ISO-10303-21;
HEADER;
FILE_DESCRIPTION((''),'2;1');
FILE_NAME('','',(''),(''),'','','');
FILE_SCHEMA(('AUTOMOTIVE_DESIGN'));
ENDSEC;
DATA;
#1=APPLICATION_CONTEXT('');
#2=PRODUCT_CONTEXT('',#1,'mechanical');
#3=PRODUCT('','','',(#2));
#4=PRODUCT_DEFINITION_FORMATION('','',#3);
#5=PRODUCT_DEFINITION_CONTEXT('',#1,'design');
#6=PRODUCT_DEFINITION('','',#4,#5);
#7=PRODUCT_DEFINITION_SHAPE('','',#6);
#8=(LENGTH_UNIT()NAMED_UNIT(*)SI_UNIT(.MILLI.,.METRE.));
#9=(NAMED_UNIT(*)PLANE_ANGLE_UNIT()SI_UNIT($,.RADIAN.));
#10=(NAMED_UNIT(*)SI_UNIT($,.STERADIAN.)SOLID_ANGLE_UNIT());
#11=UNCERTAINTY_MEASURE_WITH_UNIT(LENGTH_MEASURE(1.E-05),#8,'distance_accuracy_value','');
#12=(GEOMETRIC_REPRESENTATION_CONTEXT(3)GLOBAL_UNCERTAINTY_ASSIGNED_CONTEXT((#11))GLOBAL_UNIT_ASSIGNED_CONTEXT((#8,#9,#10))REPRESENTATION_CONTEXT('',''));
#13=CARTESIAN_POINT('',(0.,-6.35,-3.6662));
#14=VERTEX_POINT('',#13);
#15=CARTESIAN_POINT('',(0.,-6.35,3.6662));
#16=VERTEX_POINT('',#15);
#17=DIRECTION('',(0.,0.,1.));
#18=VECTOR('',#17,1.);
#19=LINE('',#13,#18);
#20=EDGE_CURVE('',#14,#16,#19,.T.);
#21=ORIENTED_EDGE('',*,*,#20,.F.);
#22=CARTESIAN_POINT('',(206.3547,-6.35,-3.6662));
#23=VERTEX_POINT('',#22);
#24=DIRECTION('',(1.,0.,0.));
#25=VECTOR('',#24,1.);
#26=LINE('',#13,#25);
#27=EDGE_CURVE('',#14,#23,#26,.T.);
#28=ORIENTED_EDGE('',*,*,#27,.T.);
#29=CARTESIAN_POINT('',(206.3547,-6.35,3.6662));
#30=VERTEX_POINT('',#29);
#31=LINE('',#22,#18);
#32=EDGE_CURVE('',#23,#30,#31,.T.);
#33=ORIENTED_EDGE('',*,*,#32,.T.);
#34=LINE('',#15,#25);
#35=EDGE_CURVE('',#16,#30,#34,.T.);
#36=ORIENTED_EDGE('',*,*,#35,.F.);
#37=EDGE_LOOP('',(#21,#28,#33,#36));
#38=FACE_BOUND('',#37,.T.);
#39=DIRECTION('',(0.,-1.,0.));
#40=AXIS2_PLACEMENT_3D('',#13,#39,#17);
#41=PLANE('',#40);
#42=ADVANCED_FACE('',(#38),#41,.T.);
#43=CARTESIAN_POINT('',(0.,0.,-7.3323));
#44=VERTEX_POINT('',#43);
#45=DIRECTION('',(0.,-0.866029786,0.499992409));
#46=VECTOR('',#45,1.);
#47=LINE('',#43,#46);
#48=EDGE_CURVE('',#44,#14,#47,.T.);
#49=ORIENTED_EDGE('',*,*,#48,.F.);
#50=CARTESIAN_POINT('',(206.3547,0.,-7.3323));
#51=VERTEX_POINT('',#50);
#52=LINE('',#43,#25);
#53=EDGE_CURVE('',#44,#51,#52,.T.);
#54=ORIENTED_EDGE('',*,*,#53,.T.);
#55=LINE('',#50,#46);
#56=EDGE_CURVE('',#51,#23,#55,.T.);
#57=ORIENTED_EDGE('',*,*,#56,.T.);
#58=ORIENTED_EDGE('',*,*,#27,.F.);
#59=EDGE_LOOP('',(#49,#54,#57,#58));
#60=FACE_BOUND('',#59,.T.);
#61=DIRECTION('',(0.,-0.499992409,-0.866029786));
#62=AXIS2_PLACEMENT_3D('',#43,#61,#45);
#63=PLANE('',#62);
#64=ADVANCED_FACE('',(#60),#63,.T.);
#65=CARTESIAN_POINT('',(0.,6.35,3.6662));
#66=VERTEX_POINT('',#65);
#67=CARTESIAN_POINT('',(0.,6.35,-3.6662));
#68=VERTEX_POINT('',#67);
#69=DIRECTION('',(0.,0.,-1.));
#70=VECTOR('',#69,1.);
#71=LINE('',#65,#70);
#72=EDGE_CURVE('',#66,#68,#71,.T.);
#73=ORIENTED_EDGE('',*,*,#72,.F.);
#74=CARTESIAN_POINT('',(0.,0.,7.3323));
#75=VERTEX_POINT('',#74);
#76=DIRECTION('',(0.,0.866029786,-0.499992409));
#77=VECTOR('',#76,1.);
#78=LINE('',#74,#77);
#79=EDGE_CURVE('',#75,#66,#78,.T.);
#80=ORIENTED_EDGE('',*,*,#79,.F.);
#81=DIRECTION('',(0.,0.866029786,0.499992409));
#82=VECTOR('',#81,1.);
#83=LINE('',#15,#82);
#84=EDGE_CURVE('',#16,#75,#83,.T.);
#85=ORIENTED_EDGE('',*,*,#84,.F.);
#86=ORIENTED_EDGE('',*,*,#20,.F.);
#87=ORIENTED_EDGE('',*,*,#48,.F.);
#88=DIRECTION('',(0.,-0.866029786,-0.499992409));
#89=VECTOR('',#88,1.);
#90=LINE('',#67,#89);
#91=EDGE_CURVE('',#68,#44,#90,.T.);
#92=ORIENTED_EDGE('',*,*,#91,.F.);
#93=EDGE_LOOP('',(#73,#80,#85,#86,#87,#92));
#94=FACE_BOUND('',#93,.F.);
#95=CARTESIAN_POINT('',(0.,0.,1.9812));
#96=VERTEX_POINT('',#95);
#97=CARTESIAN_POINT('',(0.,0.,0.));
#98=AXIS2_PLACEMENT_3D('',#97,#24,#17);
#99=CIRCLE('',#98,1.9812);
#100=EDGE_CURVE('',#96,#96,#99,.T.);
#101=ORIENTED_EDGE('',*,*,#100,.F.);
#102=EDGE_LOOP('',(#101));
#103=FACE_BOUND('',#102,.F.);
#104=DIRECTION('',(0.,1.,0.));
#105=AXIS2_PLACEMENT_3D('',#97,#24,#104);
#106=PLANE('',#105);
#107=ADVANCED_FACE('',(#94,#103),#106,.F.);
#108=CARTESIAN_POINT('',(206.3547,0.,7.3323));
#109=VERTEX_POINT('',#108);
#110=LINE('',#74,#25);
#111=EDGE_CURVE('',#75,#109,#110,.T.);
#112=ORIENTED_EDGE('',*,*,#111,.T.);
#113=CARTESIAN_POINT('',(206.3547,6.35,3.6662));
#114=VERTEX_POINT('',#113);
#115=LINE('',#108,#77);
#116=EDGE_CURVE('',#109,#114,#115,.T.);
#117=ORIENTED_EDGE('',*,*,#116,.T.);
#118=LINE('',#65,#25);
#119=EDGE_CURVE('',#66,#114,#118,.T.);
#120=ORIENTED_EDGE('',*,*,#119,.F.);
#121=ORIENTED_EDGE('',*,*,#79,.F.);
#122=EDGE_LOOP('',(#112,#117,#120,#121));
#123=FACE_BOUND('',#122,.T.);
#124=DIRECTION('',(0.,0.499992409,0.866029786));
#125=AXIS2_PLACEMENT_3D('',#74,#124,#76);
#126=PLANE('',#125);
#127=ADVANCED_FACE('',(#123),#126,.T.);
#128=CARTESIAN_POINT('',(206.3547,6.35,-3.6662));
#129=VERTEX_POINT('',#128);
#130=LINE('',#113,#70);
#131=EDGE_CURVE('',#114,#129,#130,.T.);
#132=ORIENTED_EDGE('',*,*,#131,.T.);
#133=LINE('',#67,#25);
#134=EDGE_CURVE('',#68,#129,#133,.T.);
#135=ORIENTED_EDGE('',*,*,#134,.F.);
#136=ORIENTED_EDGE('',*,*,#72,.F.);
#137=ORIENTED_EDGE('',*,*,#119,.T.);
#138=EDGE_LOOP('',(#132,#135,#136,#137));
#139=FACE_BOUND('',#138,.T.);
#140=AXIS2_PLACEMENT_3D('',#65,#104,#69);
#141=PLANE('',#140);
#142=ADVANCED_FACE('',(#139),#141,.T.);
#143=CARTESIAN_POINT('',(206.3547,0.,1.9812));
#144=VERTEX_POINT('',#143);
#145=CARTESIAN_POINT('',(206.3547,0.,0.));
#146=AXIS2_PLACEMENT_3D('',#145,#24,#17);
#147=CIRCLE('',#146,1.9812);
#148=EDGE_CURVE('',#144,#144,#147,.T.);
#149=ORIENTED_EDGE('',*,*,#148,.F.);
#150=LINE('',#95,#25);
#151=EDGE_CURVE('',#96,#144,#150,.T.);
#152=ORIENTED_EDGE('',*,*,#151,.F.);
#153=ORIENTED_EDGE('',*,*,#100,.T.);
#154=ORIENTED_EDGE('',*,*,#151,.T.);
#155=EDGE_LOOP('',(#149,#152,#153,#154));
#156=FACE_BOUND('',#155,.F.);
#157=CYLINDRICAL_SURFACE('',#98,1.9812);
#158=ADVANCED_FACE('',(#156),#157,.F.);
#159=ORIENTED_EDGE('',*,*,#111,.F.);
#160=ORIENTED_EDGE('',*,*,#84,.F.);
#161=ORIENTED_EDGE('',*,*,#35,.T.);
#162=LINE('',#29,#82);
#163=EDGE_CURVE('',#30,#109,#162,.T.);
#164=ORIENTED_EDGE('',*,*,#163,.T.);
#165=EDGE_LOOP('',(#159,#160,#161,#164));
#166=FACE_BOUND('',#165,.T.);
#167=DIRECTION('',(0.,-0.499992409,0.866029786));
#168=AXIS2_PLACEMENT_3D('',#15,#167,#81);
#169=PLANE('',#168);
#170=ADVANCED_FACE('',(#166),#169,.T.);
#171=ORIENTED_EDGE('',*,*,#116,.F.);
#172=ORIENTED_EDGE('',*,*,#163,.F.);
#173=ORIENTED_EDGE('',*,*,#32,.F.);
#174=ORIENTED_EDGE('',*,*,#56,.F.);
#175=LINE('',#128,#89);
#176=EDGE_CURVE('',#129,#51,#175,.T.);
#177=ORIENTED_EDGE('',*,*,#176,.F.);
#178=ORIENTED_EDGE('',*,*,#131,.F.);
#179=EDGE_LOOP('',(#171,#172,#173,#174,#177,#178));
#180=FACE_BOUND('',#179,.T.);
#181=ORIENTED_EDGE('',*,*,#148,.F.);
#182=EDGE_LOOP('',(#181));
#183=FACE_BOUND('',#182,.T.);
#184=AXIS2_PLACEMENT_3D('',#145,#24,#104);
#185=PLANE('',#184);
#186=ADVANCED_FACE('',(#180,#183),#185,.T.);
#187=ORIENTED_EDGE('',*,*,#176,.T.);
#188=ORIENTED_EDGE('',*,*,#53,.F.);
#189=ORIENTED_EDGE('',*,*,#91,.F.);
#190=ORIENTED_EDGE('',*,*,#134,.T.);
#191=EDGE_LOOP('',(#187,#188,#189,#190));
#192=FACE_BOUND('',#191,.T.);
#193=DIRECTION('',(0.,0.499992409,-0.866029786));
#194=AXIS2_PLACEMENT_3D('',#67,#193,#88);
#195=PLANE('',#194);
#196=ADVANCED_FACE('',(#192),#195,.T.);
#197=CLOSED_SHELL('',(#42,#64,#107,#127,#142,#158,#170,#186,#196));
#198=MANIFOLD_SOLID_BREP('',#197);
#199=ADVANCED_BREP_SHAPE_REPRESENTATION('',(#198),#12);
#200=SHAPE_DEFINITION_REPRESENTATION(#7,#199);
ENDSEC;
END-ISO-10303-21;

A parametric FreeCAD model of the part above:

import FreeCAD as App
import Part
import Sketcher
from FreeCAD import Vector
Q = App.Units.Quantity

doc = App.newDocument("Part")
body = doc.addObject("PartDesign::Body", "Body")

sketch1 = body.newObject("Sketcher::SketchObject", "Sketch")
sketch1.AttachmentSupport = (doc.getObject("YZ_Plane"), [""])
sketch1.MapMode = "FlatFace"
sketch1.addGeometry(Part.LineSegment(Vector(-6, 4, 0), Vector(-6, -4, 0)), False)
sketch1.addGeometry(Part.LineSegment(Vector(-6, -4, 0), Vector(0, -7, 0)), False)
sketch1.addGeometry(Part.LineSegment(Vector(0, -7, 0), Vector(6, -4, 0)), False)
sketch1.addGeometry(Part.LineSegment(Vector(6, -4, 0), Vector(6, 4, 0)), False)
sketch1.addGeometry(Part.LineSegment(Vector(6, 4, 0), Vector(0, 7, 0)), False)
sketch1.addGeometry(Part.LineSegment(Vector(0, 7, 0), Vector(-6, 4, 0)), False)
sketch1.addConstraint(Sketcher.Constraint("Coincident", 0, 2, 1, 1))
sketch1.addConstraint(Sketcher.Constraint("Coincident", 1, 2, 2, 1))
sketch1.addConstraint(Sketcher.Constraint("Coincident", 2, 2, 3, 1))
sketch1.addConstraint(Sketcher.Constraint("Coincident", 3, 2, 4, 1))
sketch1.addConstraint(Sketcher.Constraint("Coincident", 4, 2, 5, 1))
sketch1.addConstraint(Sketcher.Constraint("Coincident", 5, 2, 0, 1))
sketch1.addConstraint(Sketcher.Constraint("Vertical", 0))
sketch1.addConstraint(Sketcher.Constraint("Vertical", 3))
sketch1.addConstraint(Sketcher.Constraint("Symmetric", 0, 2, 3, 2, -1, 1))
sketch1.addConstraint(Sketcher.Constraint("Symmetric", 1, 2, 4, 2, -1, 1))
sketch1.addConstraint(Sketcher.Constraint("PointOnObject", 1, 2, -2))
sketch1.addConstraint(Sketcher.Constraint("Parallel", 2, 5))
sketch1.addConstraint(Sketcher.Constraint("Horizontal", 0, 2, 2, 2))
sketch1.addConstraint(Sketcher.Constraint("DistanceX", 0, 2, 2, 2, Q("0.5 in")))
sketch1.addConstraint(Sketcher.Constraint("Angle", 1, Q("-29.9995 deg")))
sketch1.addConstraint(Sketcher.Constraint("DistanceY", 1, 2, 3, 2, Q("0.433 in")))
pad1 = body.newObject("PartDesign::Pad", "Pad")
pad1.Profile = sketch1
pad1.Length = Q("8.1242008 in")

sketch2 = body.newObject("Sketcher::SketchObject", "Sketch001")
sketch2.AttachmentSupport = (doc.getObject("YZ_Plane"), [""])
sketch2.MapMode = "FlatFace"
sketch2.addGeometry(Part.Circle(Vector(0, 0, 0), Vector(0, 0, 1), 2), False)
sketch2.addConstraint(Sketcher.Constraint("Coincident", 0, 3, -1, 1))
sketch2.addConstraint(Sketcher.Constraint("Diameter", 0, Q("0.156 in")))
doc.recompute()
hole = body.newObject("PartDesign::Hole", "Hole")
hole.Profile = sketch2
hole.ThreadType = "None"
hole.Diameter = Q("0.156 in")
hole.DepthType = "ThroughAll"
hole.Reversed = True

doc.recompute()
